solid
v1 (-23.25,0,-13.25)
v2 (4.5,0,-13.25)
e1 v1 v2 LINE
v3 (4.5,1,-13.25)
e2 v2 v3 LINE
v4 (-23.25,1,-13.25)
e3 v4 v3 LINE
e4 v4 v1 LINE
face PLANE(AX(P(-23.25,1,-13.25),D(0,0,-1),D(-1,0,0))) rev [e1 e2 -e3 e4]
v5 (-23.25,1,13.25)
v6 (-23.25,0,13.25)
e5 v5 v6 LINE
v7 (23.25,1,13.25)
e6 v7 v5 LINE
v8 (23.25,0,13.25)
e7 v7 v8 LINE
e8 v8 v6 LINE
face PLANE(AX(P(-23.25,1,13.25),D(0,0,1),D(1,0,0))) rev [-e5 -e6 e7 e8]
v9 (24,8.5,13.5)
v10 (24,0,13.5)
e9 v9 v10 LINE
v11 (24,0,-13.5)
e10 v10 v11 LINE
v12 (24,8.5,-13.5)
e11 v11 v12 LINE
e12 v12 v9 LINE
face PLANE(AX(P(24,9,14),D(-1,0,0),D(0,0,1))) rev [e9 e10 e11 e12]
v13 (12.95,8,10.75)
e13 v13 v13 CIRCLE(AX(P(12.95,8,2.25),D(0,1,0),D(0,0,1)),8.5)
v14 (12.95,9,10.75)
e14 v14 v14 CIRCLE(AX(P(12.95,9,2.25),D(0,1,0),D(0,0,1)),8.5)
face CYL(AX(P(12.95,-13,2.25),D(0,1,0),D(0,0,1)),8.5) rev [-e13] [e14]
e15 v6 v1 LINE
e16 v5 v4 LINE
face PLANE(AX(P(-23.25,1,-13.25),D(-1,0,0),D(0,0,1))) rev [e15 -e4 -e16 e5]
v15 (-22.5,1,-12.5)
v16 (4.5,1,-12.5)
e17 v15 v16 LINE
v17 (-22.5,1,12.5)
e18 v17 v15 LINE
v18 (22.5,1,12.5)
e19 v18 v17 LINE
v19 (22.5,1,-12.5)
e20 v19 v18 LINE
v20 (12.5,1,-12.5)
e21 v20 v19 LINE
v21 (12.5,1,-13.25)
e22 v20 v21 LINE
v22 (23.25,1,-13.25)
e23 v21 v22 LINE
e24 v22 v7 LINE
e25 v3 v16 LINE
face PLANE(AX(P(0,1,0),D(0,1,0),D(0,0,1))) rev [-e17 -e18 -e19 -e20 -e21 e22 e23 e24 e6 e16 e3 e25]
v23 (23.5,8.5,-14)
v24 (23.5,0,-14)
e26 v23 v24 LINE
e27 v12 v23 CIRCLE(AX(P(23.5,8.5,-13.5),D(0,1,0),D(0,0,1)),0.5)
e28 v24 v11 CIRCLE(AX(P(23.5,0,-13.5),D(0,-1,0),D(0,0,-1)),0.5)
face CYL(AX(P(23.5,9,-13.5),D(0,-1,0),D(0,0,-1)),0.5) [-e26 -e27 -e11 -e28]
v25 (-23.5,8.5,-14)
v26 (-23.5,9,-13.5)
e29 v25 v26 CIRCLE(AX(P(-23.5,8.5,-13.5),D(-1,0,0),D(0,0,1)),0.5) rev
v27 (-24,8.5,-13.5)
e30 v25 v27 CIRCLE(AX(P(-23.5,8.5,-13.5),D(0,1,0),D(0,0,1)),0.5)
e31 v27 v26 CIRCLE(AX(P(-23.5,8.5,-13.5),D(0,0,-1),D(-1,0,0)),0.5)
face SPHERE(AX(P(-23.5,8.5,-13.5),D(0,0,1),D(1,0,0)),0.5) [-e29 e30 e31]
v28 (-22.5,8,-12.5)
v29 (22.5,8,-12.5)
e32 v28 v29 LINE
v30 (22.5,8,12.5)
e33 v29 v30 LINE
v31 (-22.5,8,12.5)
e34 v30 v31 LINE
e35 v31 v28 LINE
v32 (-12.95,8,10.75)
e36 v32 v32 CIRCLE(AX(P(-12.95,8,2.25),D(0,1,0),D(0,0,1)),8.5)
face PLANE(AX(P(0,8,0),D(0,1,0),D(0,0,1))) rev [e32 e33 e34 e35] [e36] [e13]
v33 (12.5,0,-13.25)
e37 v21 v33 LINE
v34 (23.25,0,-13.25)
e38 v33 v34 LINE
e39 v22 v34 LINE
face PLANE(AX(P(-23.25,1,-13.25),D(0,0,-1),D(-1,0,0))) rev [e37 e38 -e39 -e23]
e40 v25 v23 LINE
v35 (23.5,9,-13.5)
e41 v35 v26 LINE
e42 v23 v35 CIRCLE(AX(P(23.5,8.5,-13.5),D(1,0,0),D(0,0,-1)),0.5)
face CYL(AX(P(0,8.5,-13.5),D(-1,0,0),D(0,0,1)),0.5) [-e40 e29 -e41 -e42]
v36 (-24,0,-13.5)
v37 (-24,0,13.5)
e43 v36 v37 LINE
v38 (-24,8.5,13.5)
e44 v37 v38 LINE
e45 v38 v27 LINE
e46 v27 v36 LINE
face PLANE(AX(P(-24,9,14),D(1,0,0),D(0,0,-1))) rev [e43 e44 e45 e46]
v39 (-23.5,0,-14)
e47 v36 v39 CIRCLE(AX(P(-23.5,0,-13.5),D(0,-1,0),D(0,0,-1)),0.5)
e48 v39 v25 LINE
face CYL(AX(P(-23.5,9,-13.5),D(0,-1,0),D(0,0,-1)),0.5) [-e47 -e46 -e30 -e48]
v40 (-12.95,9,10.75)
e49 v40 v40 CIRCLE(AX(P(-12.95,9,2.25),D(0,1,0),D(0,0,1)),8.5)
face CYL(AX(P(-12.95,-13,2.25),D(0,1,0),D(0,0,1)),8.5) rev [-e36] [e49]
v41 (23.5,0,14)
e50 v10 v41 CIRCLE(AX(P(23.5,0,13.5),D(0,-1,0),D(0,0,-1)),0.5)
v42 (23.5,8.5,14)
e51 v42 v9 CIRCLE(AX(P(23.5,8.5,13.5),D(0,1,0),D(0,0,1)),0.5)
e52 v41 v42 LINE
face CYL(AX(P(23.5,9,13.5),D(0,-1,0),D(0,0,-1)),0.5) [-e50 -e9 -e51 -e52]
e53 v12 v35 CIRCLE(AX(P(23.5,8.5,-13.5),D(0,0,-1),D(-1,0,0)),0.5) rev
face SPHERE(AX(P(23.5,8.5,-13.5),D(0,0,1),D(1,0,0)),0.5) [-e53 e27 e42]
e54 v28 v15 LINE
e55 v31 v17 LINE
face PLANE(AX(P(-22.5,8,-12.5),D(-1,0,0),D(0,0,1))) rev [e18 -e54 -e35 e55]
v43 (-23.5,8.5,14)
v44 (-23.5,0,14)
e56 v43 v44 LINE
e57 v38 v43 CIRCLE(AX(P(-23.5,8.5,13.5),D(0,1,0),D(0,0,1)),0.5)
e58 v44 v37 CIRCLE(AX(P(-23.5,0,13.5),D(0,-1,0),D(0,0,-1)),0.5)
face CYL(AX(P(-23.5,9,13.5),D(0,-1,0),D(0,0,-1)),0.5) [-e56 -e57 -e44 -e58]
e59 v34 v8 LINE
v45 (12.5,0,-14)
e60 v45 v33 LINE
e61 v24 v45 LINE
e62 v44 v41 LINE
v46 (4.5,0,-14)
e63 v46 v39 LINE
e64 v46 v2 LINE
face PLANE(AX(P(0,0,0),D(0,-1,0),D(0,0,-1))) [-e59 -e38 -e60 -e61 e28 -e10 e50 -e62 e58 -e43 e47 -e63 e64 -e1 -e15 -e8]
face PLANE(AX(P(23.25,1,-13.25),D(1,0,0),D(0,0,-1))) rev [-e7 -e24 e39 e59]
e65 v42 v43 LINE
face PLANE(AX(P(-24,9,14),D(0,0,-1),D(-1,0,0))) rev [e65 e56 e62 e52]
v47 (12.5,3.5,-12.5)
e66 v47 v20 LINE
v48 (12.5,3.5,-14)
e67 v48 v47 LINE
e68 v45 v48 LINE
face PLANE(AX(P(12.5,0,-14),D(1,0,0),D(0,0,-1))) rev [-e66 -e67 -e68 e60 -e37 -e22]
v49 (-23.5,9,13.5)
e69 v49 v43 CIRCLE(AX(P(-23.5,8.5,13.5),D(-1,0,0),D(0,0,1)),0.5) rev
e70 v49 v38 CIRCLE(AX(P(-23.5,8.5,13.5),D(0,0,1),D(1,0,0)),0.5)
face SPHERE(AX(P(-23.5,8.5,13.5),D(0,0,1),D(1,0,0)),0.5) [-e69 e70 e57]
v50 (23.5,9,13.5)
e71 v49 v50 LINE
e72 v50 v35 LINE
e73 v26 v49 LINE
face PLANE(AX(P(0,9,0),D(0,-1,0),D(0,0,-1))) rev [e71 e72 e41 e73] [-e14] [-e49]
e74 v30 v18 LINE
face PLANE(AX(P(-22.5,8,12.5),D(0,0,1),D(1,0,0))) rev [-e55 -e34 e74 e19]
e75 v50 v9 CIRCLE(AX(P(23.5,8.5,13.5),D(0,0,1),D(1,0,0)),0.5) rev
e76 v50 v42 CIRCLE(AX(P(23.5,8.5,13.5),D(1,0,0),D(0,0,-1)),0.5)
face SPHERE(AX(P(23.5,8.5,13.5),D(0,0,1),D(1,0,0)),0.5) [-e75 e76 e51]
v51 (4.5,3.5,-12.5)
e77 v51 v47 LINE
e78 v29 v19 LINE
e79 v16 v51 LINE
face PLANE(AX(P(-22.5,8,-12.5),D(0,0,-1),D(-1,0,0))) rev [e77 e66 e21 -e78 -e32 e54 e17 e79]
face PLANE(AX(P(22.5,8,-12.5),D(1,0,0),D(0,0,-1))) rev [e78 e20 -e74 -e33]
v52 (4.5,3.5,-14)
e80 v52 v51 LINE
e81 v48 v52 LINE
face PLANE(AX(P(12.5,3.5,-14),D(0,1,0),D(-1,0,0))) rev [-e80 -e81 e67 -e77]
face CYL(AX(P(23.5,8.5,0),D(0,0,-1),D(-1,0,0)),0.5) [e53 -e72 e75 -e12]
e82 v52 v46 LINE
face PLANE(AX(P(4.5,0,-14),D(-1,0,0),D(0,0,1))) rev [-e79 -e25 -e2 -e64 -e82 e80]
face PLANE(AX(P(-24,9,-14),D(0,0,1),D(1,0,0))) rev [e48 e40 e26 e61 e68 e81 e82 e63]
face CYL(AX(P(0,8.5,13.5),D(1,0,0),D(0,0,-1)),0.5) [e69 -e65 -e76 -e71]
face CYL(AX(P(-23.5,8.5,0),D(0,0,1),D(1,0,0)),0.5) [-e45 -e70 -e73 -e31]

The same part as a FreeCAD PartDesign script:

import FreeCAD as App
import Part
import Sketcher
from FreeCAD import Vector


def edges_at(feature, points):
    """Names of the edges that pass closest to the given points."""
    edges = feature.Shape.Edges
    near = lambda p: min(range(len(edges)), key=lambda i: edges[i].distToShape(Part.Vertex(*p))[0])
    return sorted({f"Edge{near(p) + 1}" for p in points})

doc = App.newDocument("Part")
body = doc.addObject("PartDesign::Body", "Body")

# Sketch on XZ plane
sketch1 = body.newObject("Sketcher::SketchObject", "Sketch")
sketch1.AttachmentSupport = (doc.getObject("XZ_Plane"), [""])
sketch1.MapMode = "FlatFace"
sketch1.addGeometry(Part.LineSegment(Vector(-24, -14, 0), Vector(-24, 14, 0)), False)
sketch1.addGeometry(Part.LineSegment(Vector(-24, 14, 0), Vector(24, 14, 0)), False)
sketch1.addGeometry(Part.LineSegment(Vector(24, 14, 0), Vector(24, -14, 0)), False)
sketch1.addGeometry(Part.LineSegment(Vector(24, -14, 0), Vector(-24, -14, 0)), False)
sketch1.addConstraint(Sketcher.Constraint("Coincident", 0, 2, 1, 1))
sketch1.addConstraint(Sketcher.Constraint("Coincident", 1, 2, 2, 1))
sketch1.addConstraint(Sketcher.Constraint("Coincident", 2, 2, 3, 1))
sketch1.addConstraint(Sketcher.Constraint("Coincident", 3, 2, 0, 1))
sketch1.addConstraint(Sketcher.Constraint("Vertical", 0))
sketch1.addConstraint(Sketcher.Constraint("Horizontal", 1))
sketch1.addConstraint(Sketcher.Constraint("Vertical", 2))
sketch1.addConstraint(Sketcher.Constraint("Horizontal", 3))
sketch1.addConstraint(Sketcher.Constraint("Symmetric", 0, 2, 2, 2, -1, 1))
sketch1.addConstraint(Sketcher.Constraint("DistanceX", 1, 1, 1, 2, 48.0))
sketch1.addConstraint(Sketcher.Constraint("DistanceY", 0, 1, 0, 2, 28.0))
pad1 = body.newObject("PartDesign::Pad", "Pad")
pad1.Profile = sketch1
pad1.Length = 9
pad1.Reversed = True

# Sketch on XZ plane
sketch2 = body.newObject("Sketcher::SketchObject", "Sketch001")
sketch2.AttachmentSupport = (doc.getObject("XZ_Plane"), [""])
sketch2.MapMode = "FlatFace"
sketch2.addGeometry(Part.LineSegment(Vector(-22, 12, 0), Vector(-22, -12, 0)), False)
sketch2.addGeometry(Part.LineSegment(Vector(-22, -12, 0), Vector(22, -12, 0)), False)
sketch2.addGeometry(Part.LineSegment(Vector(22, -12, 0), Vector(22, 12, 0)), False)
sketch2.addGeometry(Part.LineSegment(Vector(22, 12, 0), Vector(-22, 12, 0)), False)
sketch2.addConstraint(Sketcher.Constraint("Coincident", 0, 2, 1, 1))
sketch2.addConstraint(Sketcher.Constraint("Coincident", 1, 2, 2, 1))
sketch2.addConstraint(Sketcher.Constraint("Coincident", 2, 2, 3, 1))
sketch2.addConstraint(Sketcher.Constraint("Coincident", 3, 2, 0, 1))
sketch2.addConstraint(Sketcher.Constraint("Vertical", 0))
sketch2.addConstraint(Sketcher.Constraint("Horizontal", 1))
sketch2.addConstraint(Sketcher.Constraint("Vertical", 2))
sketch2.addConstraint(Sketcher.Constraint("Horizontal", 3))
sketch2.addConstraint(Sketcher.Constraint("Symmetric", 0, 2, 2, 2, -1, 1))
sketch2.addConstraint(Sketcher.Constraint("DistanceX", 1, 1, 1, 2, 45.0))
sketch2.addConstraint(Sketcher.Constraint("DistanceY", 0, 2, 0, 1, 25.0))
pocket1 = body.newObject("PartDesign::Pocket", "Pocket")
pocket1.Profile = sketch2
pocket1.Length = 8

# Sketch on XZ plane
sketch3 = body.newObject("Sketcher::SketchObject", "Sketch002")
sketch3.AttachmentSupport = (doc.getObject("XZ_Plane"), [""])
sketch3.MapMode = "FlatFace"
sketch3.AttachmentOffset = App.Placement(Vector(0, 0, -9), App.Rotation())
sketch3.addGeometry(Part.Circle(Vector(-13, 2, 0), Vector(0, 0, 1), 8), False)
sketch3.addGeometry(Part.Circle(Vector(13, 2, 0), Vector(0, 0, 1), 8), False)
sketch3.addConstraint(Sketcher.Constraint("Equal", 0, 1))
sketch3.addConstraint(Sketcher.Constraint("Symmetric", 0, 3, 1, 3, -2))
sketch3.addConstraint(Sketcher.Constraint("Diameter", 0, 17.0))
sketch3.addConstraint(Sketcher.Constraint("DistanceX", 0, 3, 1, 3, 25.9))
sketch3.addConstraint(Sketcher.Constraint("DistanceY", -1, 1, 0, 3, 2.25))
pocket2 = body.newObject("PartDesign::Pocket", "Pocket001")
pocket2.Profile = sketch3
pocket2.Length = 22
pocket2.Reversed = True

# Sketch on XZ plane
sketch4 = body.newObject("Sketcher::SketchObject", "Sketch003")
sketch4.AttachmentSupport = (doc.getObject("XZ_Plane"), [""])
sketch4.MapMode = "FlatFace"
sketch4.addGeometry(Part.LineSegment(Vector(-23, 13, 0), Vector(-23, -13, 0)), False)
sketch4.addGeometry(Part.LineSegment(Vector(-23, -13, 0), Vector(23, -13, 0)), False)
sketch4.addGeometry(Part.LineSegment(Vector(23, -13, 0), Vector(23, 13, 0)), False)
sketch4.addGeometry(Part.LineSegment(Vector(23, 13, 0), Vector(-23, 13, 0)), False)
sketch4.addConstraint(Sketcher.Constraint("Coincident", 0, 2, 1, 1))
sketch4.addConstraint(Sketcher.Constraint("Coincident", 1, 2, 2, 1))
sketch4.addConstraint(Sketcher.Constraint("Coincident", 2, 2, 3, 1))
sketch4.addConstraint(Sketcher.Constraint("Coincident", 3, 2, 0, 1))
sketch4.addConstraint(Sketcher.Constraint("Vertical", 0))
sketch4.addConstraint(Sketcher.Constraint("Horizontal", 1))
sketch4.addConstraint(Sketcher.Constraint("Vertical", 2))
sketch4.addConstraint(Sketcher.Constraint("Horizontal", 3))
sketch4.addConstraint(Sketcher.Constraint("Symmetric", 0, 2, 2, 2, -1, 1))
sketch4.addConstraint(Sketcher.Constraint("DistanceX", 1, 1, 1, 2, 46.5))
sketch4.addConstraint(Sketcher.Constraint("DistanceY", 0, 2, 0, 1, 26.5))
pocket3 = body.newObject("PartDesign::Pocket", "Pocket002")
pocket3.Profile = sketch4
pocket3.Length = 1

# Sketch on XY plane
sketch5 = body.newObject("Sketcher::SketchObject", "Sketch004")
sketch5.AttachmentSupport = (doc.getObject("XY_Plane"), [""])
sketch5.MapMode = "FlatFace"
sketch5.addGeometry(Part.LineSegment(Vector(4.5, 3.5, 0), Vector(4.5, 0, 0)), False)
sketch5.addGeometry(Part.LineSegment(Vector(4.5, 0, 0), Vector(12.5, 0, 0)), False)
sketch5.addGeometry(Part.LineSegment(Vector(12.5, 0, 0), Vector(12.5, 3.5, 0)), False)
sketch5.addGeometry(Part.LineSegment(Vector(12.5, 3.5, 0), Vector(4.5, 3.5, 0)), False)
sketch5.addConstraint(Sketcher.Constraint("Coincident", 0, 2, 1, 1))
sketch5.addConstraint(Sketcher.Constraint("Coincident", 1, 2, 2, 1))
sketch5.addConstraint(Sketcher.Constraint("Coincident", 2, 2, 3, 1))
sketch5.addConstraint(Sketcher.Constraint("Coincident", 3, 2, 0, 1))
sketch5.addConstraint(Sketcher.Constraint("Vertical", 0))
sketch5.addConstraint(Sketcher.Constraint("Horizontal", 1))
sketch5.addConstraint(Sketcher.Constraint("Vertical", 2))
sketch5.addConstraint(Sketcher.Constraint("Horizontal", 3))
sketch5.addConstraint(Sketcher.Constraint("PointOnObject", 0, 2, -1))
sketch5.addConstraint(Sketcher.Constraint("DistanceX", 1, 1, 1, 2, 8.0))
sketch5.addConstraint(Sketcher.Constraint("DistanceY", 0, 2, 0, 1, 3.5))
sketch5.addConstraint(Sketcher.Constraint("DistanceX", -1, 1, 0, 2, 4.5))
pocket4 = body.newObject("PartDesign::Pocket", "Pocket003")
pocket4.Profile = sketch5
pocket4.Type = "ThroughAll"
doc.recompute()

fillet = body.newObject("PartDesign::Fillet", "Fillet")
fillet.Base = (pocket4, edges_at(pocket4, [
    (-24, 9, 0),
    (0, 9, 14),
    (24, 9, 0),
    (0, 9, -14),
    (24, 4.5, 14),
    (-24, 4.5, 14),
    (-24, 4.5, -14),
    (24, 4.5, -14),
]))
fillet.Radius = 0.5

doc.recompute()
